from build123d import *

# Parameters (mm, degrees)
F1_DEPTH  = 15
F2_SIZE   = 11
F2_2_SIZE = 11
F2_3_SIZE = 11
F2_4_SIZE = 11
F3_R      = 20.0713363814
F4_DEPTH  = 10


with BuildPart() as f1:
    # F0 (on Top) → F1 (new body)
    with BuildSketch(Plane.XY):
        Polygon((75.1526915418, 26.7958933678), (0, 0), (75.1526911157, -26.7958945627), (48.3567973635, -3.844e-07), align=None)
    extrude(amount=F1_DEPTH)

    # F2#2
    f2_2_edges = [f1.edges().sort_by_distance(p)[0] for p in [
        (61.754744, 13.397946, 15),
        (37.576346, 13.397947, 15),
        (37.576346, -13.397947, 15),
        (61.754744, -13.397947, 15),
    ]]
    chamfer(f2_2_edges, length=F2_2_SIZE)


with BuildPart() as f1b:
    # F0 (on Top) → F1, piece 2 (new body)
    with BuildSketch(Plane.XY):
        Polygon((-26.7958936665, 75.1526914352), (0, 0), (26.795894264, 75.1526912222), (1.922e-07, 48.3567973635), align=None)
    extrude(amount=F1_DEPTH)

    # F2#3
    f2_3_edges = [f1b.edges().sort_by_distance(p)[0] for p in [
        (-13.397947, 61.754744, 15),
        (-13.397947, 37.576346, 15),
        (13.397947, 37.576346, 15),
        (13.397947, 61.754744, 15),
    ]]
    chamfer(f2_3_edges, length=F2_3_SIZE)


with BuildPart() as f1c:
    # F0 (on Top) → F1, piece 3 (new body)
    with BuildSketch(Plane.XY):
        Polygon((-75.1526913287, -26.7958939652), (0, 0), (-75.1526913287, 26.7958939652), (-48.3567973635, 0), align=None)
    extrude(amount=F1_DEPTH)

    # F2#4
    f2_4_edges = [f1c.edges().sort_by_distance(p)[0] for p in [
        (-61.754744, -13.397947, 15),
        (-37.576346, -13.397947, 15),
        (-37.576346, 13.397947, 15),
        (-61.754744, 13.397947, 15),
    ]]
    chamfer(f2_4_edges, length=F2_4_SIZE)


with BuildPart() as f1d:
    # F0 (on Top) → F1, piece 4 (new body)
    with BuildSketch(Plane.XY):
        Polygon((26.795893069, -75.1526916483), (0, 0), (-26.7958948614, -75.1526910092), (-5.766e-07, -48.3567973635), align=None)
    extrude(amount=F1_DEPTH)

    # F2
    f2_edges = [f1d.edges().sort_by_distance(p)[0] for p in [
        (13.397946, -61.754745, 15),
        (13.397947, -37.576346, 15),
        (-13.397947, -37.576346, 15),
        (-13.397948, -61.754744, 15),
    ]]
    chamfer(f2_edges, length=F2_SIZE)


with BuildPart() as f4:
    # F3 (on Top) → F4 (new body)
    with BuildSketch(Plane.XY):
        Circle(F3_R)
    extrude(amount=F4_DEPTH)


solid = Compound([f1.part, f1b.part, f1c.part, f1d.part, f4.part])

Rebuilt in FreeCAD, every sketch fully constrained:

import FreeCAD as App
import Part
import Sketcher
from FreeCAD import Vector


def edges_at(feature, points):
    """Names of the edges that pass closest to the given points."""
    edges = feature.Shape.Edges
    near = lambda p: min(range(len(edges)), key=lambda i: edges[i].distToShape(Part.Vertex(*p))[0])
    return sorted({f"Edge{near(p) + 1}" for p in points})


def add_polygon(sketch, points):
    """Adds a closed chain of lines whose ends are joined by coincident constraints."""
    first, n = sketch.GeometryCount, len(points)
    for a, b in zip(points, points[1:] + points[:1]):
        sketch.addGeometry(Part.LineSegment(App.Vector(*a, 0), App.Vector(*b, 0)), False)
    for i in range(n):
        sketch.addConstraint(Sketcher.Constraint("Coincident", first + i, 2, first + (i + 1) % n, 1))

doc = App.newDocument("Part")
body = doc.addObject("PartDesign::Body", "Body")

# Sketch on XY plane
sketch1 = body.newObject("Sketcher::SketchObject", "Sketch")
sketch1.AttachmentSupport = (doc.getObject("XY_Plane"), [""])
sketch1.MapMode = "FlatFace"
add_polygon(sketch1, [(75, 27), (0, 0), (75, -27), (48, 0)])  # lines 0-3
sketch1.addConstraint(Sketcher.Constraint("Coincident", 0, 2, -1, 1))
sketch1.addConstraint(Sketcher.Constraint("Symmetric", 1, 2, 3, 2, -1))
sketch1.addConstraint(Sketcher.Constraint("PointOnObject", 2, 2, -1))
sketch1.addConstraint(Sketcher.Constraint("Perpendicular", 2, 3))
sketch1.addConstraint(Sketcher.Constraint("DistanceX", -1, 1, 1, 2, 75.152691))
sketch1.addConstraint(Sketcher.Constraint("Distance", 0, 79.786885))
pad1 = body.newObject("PartDesign::Pad", "Pad")
pad1.Profile = sketch1
pad1.Length = 15
doc.recompute()

chamfer = body.newObject("PartDesign::Chamfer", "Chamfer")
chamfer.Base = (pad1, edges_at(pad1, [
    (61.755, 13.398, 15),
    (37.576, 13.398, 15),
    (37.576, -13.398, 15),
    (61.755, -13.398, 15),
]))
chamfer.Size = 11
body2 = doc.addObject("PartDesign::Body", "Body001")

# Sketch on XY plane
sketch2 = body2.newObject("Sketcher::SketchObject", "Sketch001")
sketch2.AttachmentSupport = (doc.getObject("XY_Plane001"), [""])
sketch2.MapMode = "FlatFace"
add_polygon(sketch2, [(-27, 75), (0, 0), (27, 75), (0, 48)])  # lines 0-3
sketch2.addConstraint(Sketcher.Constraint("Coincident", 0, 2, -1, 1))
sketch2.addConstraint(Sketcher.Constraint("Symmetric", 1, 2, 3, 2, -2))
sketch2.addConstraint(Sketcher.Constraint("PointOnObject", 2, 2, -2))
sketch2.addConstraint(Sketcher.Constraint("Perpendicular", 2, 3))
sketch2.addConstraint(Sketcher.Constraint("DistanceY", -1, 1, 1, 2, 75.152691))
sketch2.addConstraint(Sketcher.Constraint("Distance", 0, 79.786885))
pad2 = body2.newObject("PartDesign::Pad", "Pad001")
pad2.Profile = sketch2
pad2.Length = 15
doc.recompute()

chamfer2 = body2.newObject("PartDesign::Chamfer", "Chamfer001")
chamfer2.Base = (pad2, edges_at(pad2, [
    (-13.398, 61.755, 15),
    (-13.398, 37.576, 15),
    (13.398, 37.576, 15),
    (13.398, 61.755, 15),
]))
chamfer2.Size = 11
body3 = doc.addObject("PartDesign::Body", "Body002")

# Sketch on XY plane
sketch3 = body3.newObject("Sketcher::SketchObject", "Sketch002")
sketch3.AttachmentSupport = (doc.getObject("XY_Plane002"), [""])
sketch3.MapMode = "FlatFace"
add_polygon(sketch3, [(-75, -27), (0, 0), (-75, 27), (-48, 0)])  # lines 0-3
sketch3.addConstraint(Sketcher.Constraint("Coincident", 0, 2, -1, 1))
sketch3.addConstraint(Sketcher.Constraint("Symmetric", 1, 2, 3, 2, -1))
sketch3.addConstraint(Sketcher.Constraint("PointOnObject", 2, 2, -1))
sketch3.addConstraint(Sketcher.Constraint("Perpendicular", 2, 3))
sketch3.addConstraint(Sketcher.Constraint("DistanceX", 1, 2, -1, 1, 75.152691))
sketch3.addConstraint(Sketcher.Constraint("Distance", 0, 79.786885))
pad3 = body3.newObject("PartDesign::Pad", "Pad002")
pad3.Profile = sketch3
pad3.Length = 15
doc.recompute()

chamfer3 = body3.newObject("PartDesign::Chamfer", "Chamfer002")
chamfer3.Base = (pad3, edges_at(pad3, [
    (-61.755, -13.398, 15),
    (-37.576, -13.398, 15),
    (-37.576, 13.398, 15),
    (-61.755, 13.398, 15),
]))
chamfer3.Size = 11
body4 = doc.addObject("PartDesign::Body", "Body003")

# Sketch on XY plane
sketch4 = body4.newObject("Sketcher::SketchObject", "Sketch003")
sketch4.AttachmentSupport = (doc.getObject("XY_Plane003"), [""])
sketch4.MapMode = "FlatFace"
add_polygon(sketch4, [(27, -75), (0, 0), (-27, -75), (0, -48)])  # lines 0-3
sketch4.addConstraint(Sketcher.Constraint("Coincident", 0, 2, -1, 1))
sketch4.addConstraint(Sketcher.Constraint("Symmetric", 1, 2, 3, 2, -2))
sketch4.addConstraint(Sketcher.Constraint("PointOnObject", 2, 2, -2))
sketch4.addConstraint(Sketcher.Constraint("Perpendicular", 2, 3))
sketch4.addConstraint(Sketcher.Constraint("DistanceY", 1, 2, -1, 1, 75.152691))
sketch4.addConstraint(Sketcher.Constraint("Distance", 0, 79.786885))
pad4 = body4.newObject("PartDesign::Pad", "Pad003")
pad4.Profile = sketch4
pad4.Length = 15
doc.recompute()

chamfer4 = body4.newObject("PartDesign::Chamfer", "Chamfer003")
chamfer4.Base = (pad4, edges_at(pad4, [
    (13.398, -61.755, 15),
    (13.398, -37.576, 15),
    (-13.398, -37.576, 15),
    (-13.398, -61.755, 15),
]))
chamfer4.Size = 11
body5 = doc.addObject("PartDesign::Body", "Body004")

# Sketch on XY plane
sketch5 = body5.newObject("Sketcher::SketchObject", "Sketch004")
sketch5.AttachmentSupport = (doc.getObject("XY_Plane004"), [""])
sketch5.MapMode = "FlatFace"
sketch5.addGeometry(Part.Circle(Vector(0, 0, 0), Vector(0, 0, 1), 20), False)
sketch5.addConstraint(Sketcher.Constraint("Coincident", 0, 3, -1, 1))
sketch5.addConstraint(Sketcher.Constraint("Diameter", 0, 40.142673))
pad5 = body5.newObject("PartDesign::Pad", "Pad004")
pad5.Profile = sketch5
pad5.Length = 10

doc.recompute()
